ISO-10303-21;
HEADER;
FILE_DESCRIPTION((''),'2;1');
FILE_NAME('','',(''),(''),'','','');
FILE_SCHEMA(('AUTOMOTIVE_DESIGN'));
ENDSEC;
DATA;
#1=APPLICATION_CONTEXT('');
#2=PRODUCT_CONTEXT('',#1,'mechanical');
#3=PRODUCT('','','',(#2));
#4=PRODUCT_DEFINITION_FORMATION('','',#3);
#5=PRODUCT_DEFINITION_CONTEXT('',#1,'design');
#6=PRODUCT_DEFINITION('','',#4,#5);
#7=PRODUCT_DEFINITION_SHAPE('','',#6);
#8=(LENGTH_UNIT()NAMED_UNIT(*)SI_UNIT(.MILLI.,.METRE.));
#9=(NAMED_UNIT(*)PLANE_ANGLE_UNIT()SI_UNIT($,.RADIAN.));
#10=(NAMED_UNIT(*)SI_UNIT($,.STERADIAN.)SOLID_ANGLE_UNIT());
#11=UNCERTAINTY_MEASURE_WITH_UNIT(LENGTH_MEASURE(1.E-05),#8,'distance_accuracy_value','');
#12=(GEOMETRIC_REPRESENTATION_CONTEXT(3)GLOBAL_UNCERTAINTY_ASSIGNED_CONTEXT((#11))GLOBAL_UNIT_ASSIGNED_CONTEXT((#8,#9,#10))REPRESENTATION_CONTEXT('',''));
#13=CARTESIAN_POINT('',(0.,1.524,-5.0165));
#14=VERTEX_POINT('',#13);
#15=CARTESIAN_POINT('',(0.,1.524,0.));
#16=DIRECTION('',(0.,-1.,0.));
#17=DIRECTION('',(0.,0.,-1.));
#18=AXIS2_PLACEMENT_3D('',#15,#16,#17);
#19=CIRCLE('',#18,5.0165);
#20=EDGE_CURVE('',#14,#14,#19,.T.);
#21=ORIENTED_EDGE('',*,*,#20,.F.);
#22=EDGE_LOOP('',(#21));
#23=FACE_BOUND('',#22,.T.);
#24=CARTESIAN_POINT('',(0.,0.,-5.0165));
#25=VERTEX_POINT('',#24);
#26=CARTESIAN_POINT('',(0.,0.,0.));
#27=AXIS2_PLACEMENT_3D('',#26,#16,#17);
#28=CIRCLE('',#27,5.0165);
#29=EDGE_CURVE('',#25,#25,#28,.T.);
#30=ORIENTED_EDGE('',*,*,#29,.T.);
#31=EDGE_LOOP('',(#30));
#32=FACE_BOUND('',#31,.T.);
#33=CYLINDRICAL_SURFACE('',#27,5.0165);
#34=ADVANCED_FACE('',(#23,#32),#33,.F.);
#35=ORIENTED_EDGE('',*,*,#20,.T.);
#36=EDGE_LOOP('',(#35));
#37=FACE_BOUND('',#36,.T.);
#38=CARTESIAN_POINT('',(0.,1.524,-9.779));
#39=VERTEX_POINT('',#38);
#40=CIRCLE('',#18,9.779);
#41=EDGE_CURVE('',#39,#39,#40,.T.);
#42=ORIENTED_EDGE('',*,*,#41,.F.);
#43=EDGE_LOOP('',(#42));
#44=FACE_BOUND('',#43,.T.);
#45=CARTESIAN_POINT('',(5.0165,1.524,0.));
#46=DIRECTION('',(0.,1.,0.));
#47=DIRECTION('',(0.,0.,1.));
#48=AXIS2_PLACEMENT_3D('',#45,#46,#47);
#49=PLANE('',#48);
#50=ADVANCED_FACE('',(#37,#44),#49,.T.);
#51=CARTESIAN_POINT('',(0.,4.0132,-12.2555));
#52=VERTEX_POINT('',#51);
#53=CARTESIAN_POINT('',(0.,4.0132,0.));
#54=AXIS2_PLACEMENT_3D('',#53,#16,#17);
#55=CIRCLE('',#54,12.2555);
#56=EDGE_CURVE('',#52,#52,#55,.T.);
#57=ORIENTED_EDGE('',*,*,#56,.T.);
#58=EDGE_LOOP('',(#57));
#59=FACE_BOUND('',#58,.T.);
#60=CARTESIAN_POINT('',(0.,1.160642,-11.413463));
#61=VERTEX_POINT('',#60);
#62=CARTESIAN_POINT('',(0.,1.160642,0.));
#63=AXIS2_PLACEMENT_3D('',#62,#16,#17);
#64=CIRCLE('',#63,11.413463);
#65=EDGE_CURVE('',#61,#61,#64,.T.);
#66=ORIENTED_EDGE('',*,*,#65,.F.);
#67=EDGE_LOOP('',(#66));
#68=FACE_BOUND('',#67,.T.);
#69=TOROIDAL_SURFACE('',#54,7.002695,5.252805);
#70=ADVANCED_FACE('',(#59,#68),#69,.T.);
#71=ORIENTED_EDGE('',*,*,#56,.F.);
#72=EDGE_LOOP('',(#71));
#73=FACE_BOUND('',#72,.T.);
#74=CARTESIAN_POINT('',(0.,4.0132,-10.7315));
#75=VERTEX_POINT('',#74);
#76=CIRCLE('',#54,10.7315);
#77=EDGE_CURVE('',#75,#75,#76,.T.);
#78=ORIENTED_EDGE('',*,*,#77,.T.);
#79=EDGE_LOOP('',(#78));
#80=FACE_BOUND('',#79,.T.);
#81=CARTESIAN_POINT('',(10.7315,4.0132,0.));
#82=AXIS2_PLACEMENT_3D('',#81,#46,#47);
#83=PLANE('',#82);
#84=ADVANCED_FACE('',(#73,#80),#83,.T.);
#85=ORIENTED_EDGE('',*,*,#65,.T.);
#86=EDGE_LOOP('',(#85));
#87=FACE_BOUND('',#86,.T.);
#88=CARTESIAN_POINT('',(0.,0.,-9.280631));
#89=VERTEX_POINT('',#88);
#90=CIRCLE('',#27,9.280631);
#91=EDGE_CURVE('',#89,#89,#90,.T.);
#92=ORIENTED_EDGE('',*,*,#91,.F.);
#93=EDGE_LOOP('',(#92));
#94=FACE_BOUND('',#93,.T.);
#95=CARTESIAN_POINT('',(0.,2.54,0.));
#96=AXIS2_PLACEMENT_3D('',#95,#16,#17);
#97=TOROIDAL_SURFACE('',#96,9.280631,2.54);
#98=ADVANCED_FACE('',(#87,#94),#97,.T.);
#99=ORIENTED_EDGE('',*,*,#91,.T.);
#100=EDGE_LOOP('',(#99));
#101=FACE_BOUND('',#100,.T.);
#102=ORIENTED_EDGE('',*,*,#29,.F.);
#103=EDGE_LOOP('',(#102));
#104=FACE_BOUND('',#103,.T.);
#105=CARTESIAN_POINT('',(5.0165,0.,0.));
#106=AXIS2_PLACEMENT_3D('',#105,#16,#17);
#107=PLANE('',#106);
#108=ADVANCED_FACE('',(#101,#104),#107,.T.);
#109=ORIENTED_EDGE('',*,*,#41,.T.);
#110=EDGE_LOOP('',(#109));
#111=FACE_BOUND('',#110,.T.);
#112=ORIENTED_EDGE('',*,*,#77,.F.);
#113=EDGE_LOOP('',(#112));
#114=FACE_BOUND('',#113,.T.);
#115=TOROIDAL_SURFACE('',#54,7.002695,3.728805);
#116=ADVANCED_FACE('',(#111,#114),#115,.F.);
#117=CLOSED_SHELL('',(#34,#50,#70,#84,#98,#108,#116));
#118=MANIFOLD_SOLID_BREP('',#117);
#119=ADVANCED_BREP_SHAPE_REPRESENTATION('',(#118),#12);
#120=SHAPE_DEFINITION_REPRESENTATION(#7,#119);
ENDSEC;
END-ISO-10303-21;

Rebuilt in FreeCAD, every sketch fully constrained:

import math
import FreeCAD as App
import Part
import Sketcher
Q = App.Units.Quantity

doc = App.newDocument("Part")
body = doc.addObject("PartDesign::Body", "Body")

sketch1 = doc.addObject("Sketcher::SketchObject", "Sketch")
body.addObject(sketch1)
sketch1.AttachmentSupport = (doc.XY_Plane, [""])
sketch1.MapMode = "FlatFace"
sketch1.addGeometry([
    Part.LineSegment(App.Vector(5, 0, 0), App.Vector(9.3, 0, 0)),
    Part.ArcOfCircle(Part.Circle(App.Vector(9.3, 2.5, 0), App.Vector(0, 0, 1), 2.5), math.radians(-90), math.radians(-33)),
    Part.ArcOfCircle(Part.Circle(App.Vector(7, 4, 0), App.Vector(0, 0, 1), 5.3), math.radians(-33), math.radians(0)),
    Part.LineSegment(App.Vector(12.3, 4, 0), App.Vector(10.7, 4, 0)),
    Part.ArcOfCircle(Part.Circle(App.Vector(7, 4, 0), App.Vector(0, 0, 1), 3.7), math.radians(-42), math.radians(0)),
    Part.LineSegment(App.Vector(9.8, 1.5, 0), App.Vector(5, 1.5, 0)),
    Part.LineSegment(App.Vector(5, 1.5, 0), App.Vector(5, 0, 0)),
], False)
sketch1.addConstraint([
    Sketcher.Constraint("Tangent", 0, 2, 1, 1),
    Sketcher.Constraint("Tangent", 1, 2, 2, 1),
    Sketcher.Constraint("Coincident", 2, 2, 3, 1),
    Sketcher.Constraint("Coincident", 3, 2, 4, 2),
    Sketcher.Constraint("Coincident", 4, 1, 5, 1),
    Sketcher.Constraint("Coincident", 5, 2, 6, 1),
    Sketcher.Constraint("Coincident", 6, 2, 0, 1),
    Sketcher.Constraint("Horizontal", 0),
    Sketcher.Constraint("Horizontal", 3),
    Sketcher.Constraint("Horizontal", 5),
    Sketcher.Constraint("Vertical", 6),
    Sketcher.Constraint("Coincident", 4, 3, 2, 3),
    Sketcher.Constraint("PointOnObject", 0, 2, -1),
    Sketcher.Constraint("Horizontal", 4, 3, 2, 2),
    Sketcher.Constraint("Equal", 3, 6),
    Sketcher.Constraint("Radius", 1, Q("0.1 in")),
    Sketcher.Constraint("DistanceX", 3, 2, 3, 1, Q("0.06 in")),
    Sketcher.Constraint("DistanceX", 5, 2, 5, 1, Q("0.1875 in")),
    Sketcher.Constraint("DistanceY", -1, 1, 2, 3, Q("0.158 in")),
    Sketcher.Constraint("DistanceX", -1, 1, 4, 1, Q("0.385 in")),
    Sketcher.Constraint("DistanceX", -1, 1, 2, 2, Q("0.4825 in")),
])
revolution = doc.addObject("PartDesign::Revolution", "Revolution")
body.addObject(revolution)
revolution.Profile = sketch1
revolution.ReferenceAxis = (sketch1, ["V_Axis"])
revolution.Angle = 360

doc.recompute()
